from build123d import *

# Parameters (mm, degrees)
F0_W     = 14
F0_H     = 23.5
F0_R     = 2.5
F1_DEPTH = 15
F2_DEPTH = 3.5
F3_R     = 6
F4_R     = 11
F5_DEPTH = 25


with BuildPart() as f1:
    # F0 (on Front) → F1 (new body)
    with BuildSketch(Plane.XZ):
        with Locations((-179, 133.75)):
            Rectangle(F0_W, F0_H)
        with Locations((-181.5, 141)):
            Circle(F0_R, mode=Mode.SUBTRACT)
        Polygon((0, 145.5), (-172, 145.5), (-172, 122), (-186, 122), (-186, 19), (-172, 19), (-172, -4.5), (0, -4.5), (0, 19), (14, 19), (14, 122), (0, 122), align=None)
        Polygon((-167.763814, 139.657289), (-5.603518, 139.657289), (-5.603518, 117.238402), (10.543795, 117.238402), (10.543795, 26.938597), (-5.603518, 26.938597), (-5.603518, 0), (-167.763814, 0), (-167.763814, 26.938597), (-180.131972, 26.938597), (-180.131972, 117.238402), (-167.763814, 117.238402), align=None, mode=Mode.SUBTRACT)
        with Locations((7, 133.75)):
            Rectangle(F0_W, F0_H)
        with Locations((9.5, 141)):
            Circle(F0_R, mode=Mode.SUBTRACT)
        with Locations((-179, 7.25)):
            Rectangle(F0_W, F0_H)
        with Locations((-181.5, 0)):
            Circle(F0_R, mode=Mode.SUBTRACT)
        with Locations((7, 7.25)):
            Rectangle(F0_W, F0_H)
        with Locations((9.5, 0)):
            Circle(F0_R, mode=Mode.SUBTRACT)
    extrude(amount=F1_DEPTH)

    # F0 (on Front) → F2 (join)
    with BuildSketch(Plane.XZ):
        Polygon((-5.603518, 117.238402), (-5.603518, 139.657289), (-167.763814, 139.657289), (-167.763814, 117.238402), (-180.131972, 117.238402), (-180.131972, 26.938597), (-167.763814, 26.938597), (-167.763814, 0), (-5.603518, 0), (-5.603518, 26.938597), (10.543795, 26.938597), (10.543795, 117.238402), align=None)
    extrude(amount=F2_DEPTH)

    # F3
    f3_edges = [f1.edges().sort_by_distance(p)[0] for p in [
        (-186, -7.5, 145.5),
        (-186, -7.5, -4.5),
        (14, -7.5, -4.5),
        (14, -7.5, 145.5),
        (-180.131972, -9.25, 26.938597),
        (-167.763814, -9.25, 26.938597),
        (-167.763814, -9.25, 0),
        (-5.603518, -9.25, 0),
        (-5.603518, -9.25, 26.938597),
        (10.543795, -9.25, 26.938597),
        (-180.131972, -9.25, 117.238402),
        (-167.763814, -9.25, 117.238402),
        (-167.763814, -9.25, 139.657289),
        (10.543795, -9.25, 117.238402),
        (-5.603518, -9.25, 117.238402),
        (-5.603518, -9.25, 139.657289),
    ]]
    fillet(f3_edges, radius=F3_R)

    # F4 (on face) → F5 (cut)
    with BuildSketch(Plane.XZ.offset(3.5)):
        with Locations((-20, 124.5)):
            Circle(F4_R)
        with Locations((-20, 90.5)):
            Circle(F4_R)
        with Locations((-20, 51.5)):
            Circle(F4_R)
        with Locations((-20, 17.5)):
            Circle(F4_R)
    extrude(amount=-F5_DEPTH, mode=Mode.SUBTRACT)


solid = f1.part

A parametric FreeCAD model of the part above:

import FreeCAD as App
import Part
import Sketcher

V = App.Vector
Q = App.Units.Quantity


def edges_at(feature, points):
    """Names of the edges that pass closest to the given points."""
    edges = feature.Shape.Edges
    near = lambda p: min(range(len(edges)), key=lambda i: edges[i].distToShape(Part.Vertex(*p))[0])
    return sorted({f"Edge{near(p) + 1}" for p in points})


def add_polygon(sketch, points):
    """Adds a closed chain of lines whose ends are joined by coincident constraints."""
    first, n = sketch.GeometryCount, len(points)
    for a, b in zip(points, points[1:] + points[:1]):
        sketch.addGeometry(Part.LineSegment(App.Vector(*a, 0), App.Vector(*b, 0)), False)
    for i in range(n):
        sketch.addConstraint(Sketcher.Constraint("Coincident", first + i, 2, first + (i + 1) % n, 1))

doc = App.newDocument("Part")
body = doc.addObject("PartDesign::Body", "Body")

sketch1 = doc.addObject("Sketcher::SketchObject", "Sketch")
body.addObject(sketch1)
sketch1.AttachmentSupport = (doc.XZ_Plane, [""])
sketch1.MapMode = "FlatFace"
add_polygon(sketch1, [(-186, 145.5), (-186, -4.5), (14, -4.5), (14, 145.5)])
sketch1.addGeometry(Part.Circle(V(-181.5, 0, 0), V(0, 0, 1), 2.5), False)
sketch1.addGeometry(Part.Circle(V(9.5, 0, 0), V(0, 0, 1), 2.5), False)
add_polygon(sketch1, [(-167.8, 117.2), (-167.8, 139.7), (-5.6, 139.7), (-5.6, 117.2), (10.5, 117.2), (10.5, 26.9), (-5.6, 26.9), (-5.6, 0), (-167.8, 0), (-167.8, 26.9), (-180.1, 26.9), (-180.1, 117.2)])
sketch1.addGeometry(Part.Circle(V(-181.5, 141, 0), V(0, 0, 1), 2.5), False)
sketch1.addGeometry(Part.Circle(V(9.5, 141, 0), V(0, 0, 1), 2.5), False)
sketch1.addConstraint([
    Sketcher.Constraint("Vertical", 0),
    Sketcher.Constraint("Horizontal", 1),
    Sketcher.Constraint("Vertical", 2),
    Sketcher.Constraint("Horizontal", 3),
    Sketcher.Constraint("Vertical", 6),
    Sketcher.Constraint("Horizontal", 7),
    Sketcher.Constraint("Vertical", 8),
    Sketcher.Constraint("Horizontal", 9),
    Sketcher.Constraint("Vertical", 10),
    Sketcher.Constraint("Horizontal", 11),
    Sketcher.Constraint("Vertical", 12),
    Sketcher.Constraint("Horizontal", 13),
    Sketcher.Constraint("Vertical", 14),
    Sketcher.Constraint("Horizontal", 15),
    Sketcher.Constraint("Vertical", 16),
    Sketcher.Constraint("Horizontal", 17),
    Sketcher.Constraint("Equal", 4, 5),
    Sketcher.Constraint("Equal", 5, 18),
    Sketcher.Constraint("Equal", 18, 19),
    Sketcher.Constraint("PointOnObject", 4, 3, -1),
    Sketcher.Constraint("PointOnObject", 5, 3, -1),
    Sketcher.Constraint("PointOnObject", 12, 2, -1),
    Sketcher.Constraint("Horizontal", 18, 3, 19, 3),
    Sketcher.Constraint("Horizontal", 11, 2, 14, 2),
    Sketcher.Constraint("Horizontal", 9, 2, 16, 2),
    Sketcher.Constraint("Vertical", 4, 3, 18, 3),
    Sketcher.Constraint("Vertical", 5, 3, 19, 3),
    Sketcher.Constraint("Vertical", 8, 2, 11, 2),
    Sketcher.Constraint("Vertical", 6, 2, 13, 2),
    Sketcher.Constraint("Diameter", 4, Q("5 mm")),
    Sketcher.Constraint("DistanceX", 1, 1, 1, 2, Q("200 mm")),
    Sketcher.Constraint("DistanceY", 0, 2, 0, 1, Q("150 mm")),
    Sketcher.Constraint("DistanceY", -1, 1, 18, 3, Q("141 mm")),
    Sketcher.Constraint("DistanceX", 0, 2, -1, 1, Q("186 mm")),
    Sketcher.Constraint("DistanceX", 4, 3, 5, 3, Q("191 mm")),
    Sketcher.Constraint("DistanceX", 4, 3, -1, 1, Q("181.5 mm")),
    Sketcher.Constraint("DistanceY", 0, 2, -1, 1, Q("4.5 mm")),
    Sketcher.Constraint("DistanceY", -1, 1, 8, 2, Q("117.238402 mm")),
    Sketcher.Constraint("DistanceX", 7, 1, 7, 2, Q("162.160296 mm")),
    Sketcher.Constraint("DistanceX", 9, 1, 9, 2, Q("16.147313 mm")),
    Sketcher.Constraint("DistanceX", 15, 2, 15, 1, Q("12.368158 mm")),
    Sketcher.Constraint("DistanceY", 6, 1, 6, 2, Q("22.418887 mm")),
    Sketcher.Constraint("DistanceY", 10, 2, 10, 1, Q("90.299805 mm")),
    Sketcher.Constraint("DistanceX", 7, 2, -1, 1, Q("5.603518 mm")),
])
pad1 = doc.addObject("PartDesign::Pad", "Pad")
body.addObject(pad1)
pad1.Profile = sketch1
pad1.Length = 15

sketch2 = doc.addObject("Sketcher::SketchObject", "Sketch001")
body.addObject(sketch2)
sketch2.AttachmentSupport = (doc.XZ_Plane, [""])
sketch2.MapMode = "FlatFace"
add_polygon(sketch2, [(-6, 117), (-6, 140), (-168, 140), (-168, 117), (-180, 117), (-180, 27), (-168, 27), (-168, 0), (-6, 0), (-6, 27), (11, 27), (11, 117)])
sketch2.addConstraint([
    Sketcher.Constraint("Vertical", 0),
    Sketcher.Constraint("Horizontal", 1),
    Sketcher.Constraint("Vertical", 2),
    Sketcher.Constraint("Horizontal", 3),
    Sketcher.Constraint("Vertical", 4),
    Sketcher.Constraint("Horizontal", 5),
    Sketcher.Constraint("Vertical", 6),
    Sketcher.Constraint("Horizontal", 7),
    Sketcher.Constraint("Vertical", 8),
    Sketcher.Constraint("Horizontal", 9),
    Sketcher.Constraint("Vertical", 10),
    Sketcher.Constraint("Horizontal", 11),
    Sketcher.Constraint("PointOnObject", 6, 2, -1),
    Sketcher.Constraint("Horizontal", 5, 2, 8, 2),
    Sketcher.Constraint("Horizontal", 3, 2, 10, 2),
    Sketcher.Constraint("Vertical", 2, 2, 5, 2),
    Sketcher.Constraint("Vertical", 0, 2, 7, 2),
    Sketcher.Constraint("DistanceY", -1, 1, 2, 2, Q("117.238402 mm")),
    Sketcher.Constraint("DistanceX", 1, 2, 1, 1, Q("162.160296 mm")),
    Sketcher.Constraint("DistanceX", 3, 2, 3, 1, Q("12.368158 mm")),
    Sketcher.Constraint("DistanceX", 9, 1, 9, 2, Q("16.147313 mm")),
    Sketcher.Constraint("DistanceY", 0, 1, 0, 2, Q("22.418887 mm")),
    Sketcher.Constraint("DistanceY", 4, 2, 4, 1, Q("90.299805 mm")),
    Sketcher.Constraint("DistanceX", 0, 2, -1, 1, Q("5.603518 mm")),
])
pad2 = doc.addObject("PartDesign::Pad", "Pad001")
body.addObject(pad2)
pad2.Profile = sketch2
pad2.Length = 3.5
doc.recompute()

fillet = doc.addObject("PartDesign::Fillet", "Fillet")
body.addObject(fillet)
fillet.Base = (pad2, edges_at(pad2, [
    (-186, -7.5, 145.5),
    (-186, -7.5, -4.5),
    (14, -7.5, -4.5),
    (14, -7.5, 145.5),
    (-180.132, -9.25, 26.939),
    (-167.764, -9.25, 26.939),
    (-167.764, -9.25, 0),
    (-5.604, -9.25, 0),
    (-5.604, -9.25, 26.939),
    (10.544, -9.25, 26.939),
    (-180.132, -9.25, 117.238),
    (-167.764, -9.25, 117.238),
    (-167.764, -9.25, 139.657),
    (10.544, -9.25, 117.238),
    (-5.604, -9.25, 117.238),
    (-5.604, -9.25, 139.657),
]))
fillet.Radius = 6

sketch3 = doc.addObject("Sketcher::SketchObject", "Sketch002")
body.addObject(sketch3)
sketch3.AttachmentSupport = (doc.XZ_Plane, [""])
sketch3.MapMode = "FlatFace"
sketch3.AttachmentOffset = App.Placement(V(0, 0, 3.5), App.Rotation())
sketch3.addGeometry([
    Part.Circle(V(-20, 124, 0), V(0, 0, 1), 11),
    Part.Circle(V(-20, 90, 0), V(0, 0, 1), 11),
    Part.Circle(V(-20, 52, 0), V(0, 0, 1), 11),
    Part.Circle(V(-20, 18, 0), V(0, 0, 1), 11),
], False)
sketch3.addConstraint([
    Sketcher.Constraint("Equal", 0, 1),
    Sketcher.Constraint("Equal", 1, 2),
    Sketcher.Constraint("Equal", 2, 3),
    Sketcher.Constraint("Vertical", 0, 3, 1, 3),
    Sketcher.Constraint("Vertical", 1, 3, 2, 3),
    Sketcher.Constraint("Vertical", 2, 3, 3, 3),
    Sketcher.Constraint("Diameter", 0, Q("22 mm")),
    Sketcher.Constraint("DistanceX", 0, 3, -1, 1, Q("20 mm")),
    Sketcher.Constraint("DistanceY", 1, 3, 0, 3, Q("34 mm")),
    Sketcher.Constraint("DistanceY", 2, 3, 1, 3, Q("39 mm")),
    Sketcher.Constraint("DistanceY", 3, 3, 2, 3, Q("34 mm")),
    Sketcher.Constraint("DistanceY", -1, 1, 0, 3, Q("124.5 mm")),
])
pocket1 = doc.addObject("PartDesign::Pocket", "Pocket")
body.addObject(pocket1)
pocket1.Profile = sketch3
pocket1.Length = 25

doc.recompute()
